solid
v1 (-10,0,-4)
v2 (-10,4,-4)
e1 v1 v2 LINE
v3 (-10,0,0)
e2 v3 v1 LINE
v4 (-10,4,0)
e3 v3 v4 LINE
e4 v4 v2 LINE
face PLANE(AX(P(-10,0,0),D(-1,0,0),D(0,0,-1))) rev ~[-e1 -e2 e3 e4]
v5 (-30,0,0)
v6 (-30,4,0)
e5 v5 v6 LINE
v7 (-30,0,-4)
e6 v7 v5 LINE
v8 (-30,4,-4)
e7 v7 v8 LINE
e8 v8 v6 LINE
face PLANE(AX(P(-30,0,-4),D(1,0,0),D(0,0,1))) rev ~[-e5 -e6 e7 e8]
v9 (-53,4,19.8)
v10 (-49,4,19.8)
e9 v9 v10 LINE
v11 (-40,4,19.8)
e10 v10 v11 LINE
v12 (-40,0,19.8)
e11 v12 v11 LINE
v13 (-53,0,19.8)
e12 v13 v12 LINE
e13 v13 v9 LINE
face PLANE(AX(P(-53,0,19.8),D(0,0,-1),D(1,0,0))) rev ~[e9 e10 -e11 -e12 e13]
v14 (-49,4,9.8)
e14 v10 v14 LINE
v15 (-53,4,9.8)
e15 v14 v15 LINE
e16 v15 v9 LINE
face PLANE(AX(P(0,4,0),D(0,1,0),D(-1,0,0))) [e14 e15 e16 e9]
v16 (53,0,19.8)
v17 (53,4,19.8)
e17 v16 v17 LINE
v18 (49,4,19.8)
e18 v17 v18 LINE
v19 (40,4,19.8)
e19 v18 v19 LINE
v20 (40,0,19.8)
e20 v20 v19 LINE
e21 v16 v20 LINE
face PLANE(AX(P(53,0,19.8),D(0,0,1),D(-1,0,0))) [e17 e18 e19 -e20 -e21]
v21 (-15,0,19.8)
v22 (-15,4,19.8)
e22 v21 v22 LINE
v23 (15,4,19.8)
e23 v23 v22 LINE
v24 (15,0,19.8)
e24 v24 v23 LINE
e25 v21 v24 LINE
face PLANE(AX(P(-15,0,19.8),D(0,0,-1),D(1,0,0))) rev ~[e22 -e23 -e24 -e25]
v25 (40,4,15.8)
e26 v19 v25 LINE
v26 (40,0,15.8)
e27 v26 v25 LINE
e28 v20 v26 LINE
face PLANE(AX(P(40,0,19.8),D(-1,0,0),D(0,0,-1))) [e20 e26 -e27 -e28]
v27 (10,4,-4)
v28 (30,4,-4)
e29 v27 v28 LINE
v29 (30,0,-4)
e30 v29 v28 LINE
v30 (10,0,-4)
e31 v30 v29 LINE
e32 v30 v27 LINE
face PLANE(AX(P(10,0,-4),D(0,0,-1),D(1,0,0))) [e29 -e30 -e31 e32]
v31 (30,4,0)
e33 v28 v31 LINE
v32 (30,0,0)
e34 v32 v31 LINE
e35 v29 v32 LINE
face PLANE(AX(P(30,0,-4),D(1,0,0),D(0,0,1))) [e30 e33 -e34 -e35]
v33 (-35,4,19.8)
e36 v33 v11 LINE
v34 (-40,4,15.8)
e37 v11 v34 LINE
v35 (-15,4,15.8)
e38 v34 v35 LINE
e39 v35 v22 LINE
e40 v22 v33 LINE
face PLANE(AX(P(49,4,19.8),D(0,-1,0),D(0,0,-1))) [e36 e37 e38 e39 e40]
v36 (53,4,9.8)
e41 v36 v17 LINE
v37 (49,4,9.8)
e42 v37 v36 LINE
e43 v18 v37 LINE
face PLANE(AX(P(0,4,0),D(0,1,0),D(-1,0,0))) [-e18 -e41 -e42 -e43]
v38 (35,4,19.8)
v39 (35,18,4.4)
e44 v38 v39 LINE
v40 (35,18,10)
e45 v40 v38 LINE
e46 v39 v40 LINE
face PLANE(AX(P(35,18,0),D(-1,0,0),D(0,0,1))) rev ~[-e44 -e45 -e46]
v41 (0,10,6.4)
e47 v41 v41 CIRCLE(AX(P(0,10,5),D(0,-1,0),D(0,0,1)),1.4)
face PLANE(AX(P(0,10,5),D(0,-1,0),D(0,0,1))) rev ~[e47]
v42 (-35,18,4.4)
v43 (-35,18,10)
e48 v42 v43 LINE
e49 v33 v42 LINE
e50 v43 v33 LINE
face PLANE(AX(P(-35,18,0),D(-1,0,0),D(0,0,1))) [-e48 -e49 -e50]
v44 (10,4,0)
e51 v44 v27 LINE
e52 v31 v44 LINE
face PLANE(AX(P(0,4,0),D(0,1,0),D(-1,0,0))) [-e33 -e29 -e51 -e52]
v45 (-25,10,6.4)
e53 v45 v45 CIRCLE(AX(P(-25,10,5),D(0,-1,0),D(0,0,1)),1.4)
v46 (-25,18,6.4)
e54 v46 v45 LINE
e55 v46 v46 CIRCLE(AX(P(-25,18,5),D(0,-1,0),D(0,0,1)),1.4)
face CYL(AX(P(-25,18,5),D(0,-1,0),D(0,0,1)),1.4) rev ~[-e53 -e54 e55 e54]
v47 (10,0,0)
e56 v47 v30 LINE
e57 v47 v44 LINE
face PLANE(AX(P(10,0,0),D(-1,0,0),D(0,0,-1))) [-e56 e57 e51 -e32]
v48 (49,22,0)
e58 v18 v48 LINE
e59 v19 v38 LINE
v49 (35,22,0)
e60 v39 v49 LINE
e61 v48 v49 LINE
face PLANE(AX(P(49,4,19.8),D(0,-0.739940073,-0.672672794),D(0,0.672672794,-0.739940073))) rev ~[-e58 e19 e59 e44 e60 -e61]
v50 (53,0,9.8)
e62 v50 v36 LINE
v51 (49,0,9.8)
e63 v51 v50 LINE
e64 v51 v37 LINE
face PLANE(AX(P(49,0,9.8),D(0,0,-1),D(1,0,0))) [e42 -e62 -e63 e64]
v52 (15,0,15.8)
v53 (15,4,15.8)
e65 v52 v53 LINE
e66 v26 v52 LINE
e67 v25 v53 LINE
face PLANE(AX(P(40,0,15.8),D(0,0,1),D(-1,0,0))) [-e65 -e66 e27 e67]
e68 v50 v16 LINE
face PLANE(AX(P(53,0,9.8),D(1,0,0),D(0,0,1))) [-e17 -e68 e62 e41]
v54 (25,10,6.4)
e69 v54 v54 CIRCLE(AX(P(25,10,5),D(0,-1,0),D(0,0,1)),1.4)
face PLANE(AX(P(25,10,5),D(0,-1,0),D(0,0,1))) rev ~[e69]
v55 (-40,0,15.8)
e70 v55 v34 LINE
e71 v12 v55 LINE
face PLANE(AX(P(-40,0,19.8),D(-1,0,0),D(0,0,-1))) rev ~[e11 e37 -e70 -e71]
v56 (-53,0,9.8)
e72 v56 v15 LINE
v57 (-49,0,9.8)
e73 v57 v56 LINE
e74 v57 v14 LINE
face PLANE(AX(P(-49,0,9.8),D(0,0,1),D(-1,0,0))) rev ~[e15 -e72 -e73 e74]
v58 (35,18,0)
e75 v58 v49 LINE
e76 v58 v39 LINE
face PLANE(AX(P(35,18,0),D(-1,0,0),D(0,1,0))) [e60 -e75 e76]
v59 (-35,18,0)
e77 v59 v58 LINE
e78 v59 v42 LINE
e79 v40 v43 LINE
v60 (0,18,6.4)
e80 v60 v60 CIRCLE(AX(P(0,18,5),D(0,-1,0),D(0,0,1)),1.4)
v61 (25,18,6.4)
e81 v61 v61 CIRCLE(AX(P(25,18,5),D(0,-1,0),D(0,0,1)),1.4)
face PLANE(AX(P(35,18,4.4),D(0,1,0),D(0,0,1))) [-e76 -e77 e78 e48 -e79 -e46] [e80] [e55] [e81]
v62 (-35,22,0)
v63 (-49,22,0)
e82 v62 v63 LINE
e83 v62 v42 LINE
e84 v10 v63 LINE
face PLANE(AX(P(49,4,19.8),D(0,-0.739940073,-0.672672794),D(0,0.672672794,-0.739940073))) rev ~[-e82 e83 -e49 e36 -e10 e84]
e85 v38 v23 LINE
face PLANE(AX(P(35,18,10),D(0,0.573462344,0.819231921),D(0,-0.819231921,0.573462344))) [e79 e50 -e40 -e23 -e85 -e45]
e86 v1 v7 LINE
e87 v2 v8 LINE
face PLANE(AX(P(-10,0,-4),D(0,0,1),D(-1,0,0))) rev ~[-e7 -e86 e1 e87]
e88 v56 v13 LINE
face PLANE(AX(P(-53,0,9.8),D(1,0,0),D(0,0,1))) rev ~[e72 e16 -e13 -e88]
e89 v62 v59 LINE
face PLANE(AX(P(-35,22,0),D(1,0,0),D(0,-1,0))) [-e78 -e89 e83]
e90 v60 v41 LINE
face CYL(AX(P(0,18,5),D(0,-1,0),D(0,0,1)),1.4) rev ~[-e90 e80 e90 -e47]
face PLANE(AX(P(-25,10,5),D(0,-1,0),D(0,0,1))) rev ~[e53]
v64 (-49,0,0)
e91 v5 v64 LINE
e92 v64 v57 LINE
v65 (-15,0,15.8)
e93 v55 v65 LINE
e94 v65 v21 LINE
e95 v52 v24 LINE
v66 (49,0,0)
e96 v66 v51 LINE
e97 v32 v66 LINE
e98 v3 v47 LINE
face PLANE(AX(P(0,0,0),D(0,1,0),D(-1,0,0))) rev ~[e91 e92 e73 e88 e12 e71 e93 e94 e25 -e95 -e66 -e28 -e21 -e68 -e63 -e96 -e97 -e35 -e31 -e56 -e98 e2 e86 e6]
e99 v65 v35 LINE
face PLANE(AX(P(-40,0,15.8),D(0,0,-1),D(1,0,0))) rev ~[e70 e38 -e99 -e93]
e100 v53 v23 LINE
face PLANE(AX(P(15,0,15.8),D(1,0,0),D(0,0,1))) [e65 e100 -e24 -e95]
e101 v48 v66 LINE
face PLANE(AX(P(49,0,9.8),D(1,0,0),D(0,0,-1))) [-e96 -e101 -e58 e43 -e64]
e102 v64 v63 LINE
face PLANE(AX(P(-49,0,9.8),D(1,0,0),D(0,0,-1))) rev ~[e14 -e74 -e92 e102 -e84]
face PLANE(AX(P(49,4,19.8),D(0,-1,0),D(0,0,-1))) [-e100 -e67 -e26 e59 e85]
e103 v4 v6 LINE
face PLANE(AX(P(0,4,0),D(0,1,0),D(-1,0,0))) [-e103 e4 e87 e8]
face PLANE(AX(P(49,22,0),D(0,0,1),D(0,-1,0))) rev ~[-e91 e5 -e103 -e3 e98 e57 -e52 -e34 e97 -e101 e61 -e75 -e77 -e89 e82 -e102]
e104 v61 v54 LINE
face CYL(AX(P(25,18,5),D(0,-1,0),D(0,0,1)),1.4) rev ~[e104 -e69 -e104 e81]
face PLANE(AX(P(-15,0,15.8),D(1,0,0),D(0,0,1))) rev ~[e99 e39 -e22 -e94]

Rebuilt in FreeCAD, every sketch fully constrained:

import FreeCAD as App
import Part
import Sketcher

V = App.Vector

doc = App.newDocument("Part")
body = doc.addObject("PartDesign::Body", "Body")

# Sketch on XZ plane
sketch1 = doc.addObject("Sketcher::SketchObject", "Sketch")
body.addObject(sketch1)
sketch1.AttachmentSupport = (doc.XZ_Plane, [""])
sketch1.MapMode = "FlatFace"
sketch1.addGeometry(Part.LineSegment(V(-15, 19.8, 0), V(15, 19.8, 0)), False)
sketch1.addGeometry(Part.LineSegment(V(15, 19.8, 0), V(15, 15.8, 0)), False)
sketch1.addGeometry(Part.LineSegment(V(15, 15.8, 0), V(40, 15.8, 0)), False)
sketch1.addGeometry(Part.LineSegment(V(40, 15.8, 0), V(40, 19.8, 0)), False)
sketch1.addGeometry(Part.LineSegment(V(40, 19.8, 0), V(53, 19.8, 0)), False)
sketch1.addGeometry(Part.LineSegment(V(53, 19.8, 0), V(53, 9.8, 0)), False)
sketch1.addGeometry(Part.LineSegment(V(53, 9.8, 0), V(49, 9.8, 0)), False)
sketch1.addGeometry(Part.LineSegment(V(49, 9.8, 0), V(49, 0, 0)), False)
sketch1.addGeometry(Part.LineSegment(V(49, 0, 0), V(30, 0, 0)), False)
sketch1.addGeometry(Part.LineSegment(V(30, 0, 0), V(30, -4, 0)), False)
sketch1.addGeometry(Part.LineSegment(V(30, -4, 0), V(10, -4, 0)), False)
sketch1.addGeometry(Part.LineSegment(V(10, -4, 0), V(10, 0, 0)), False)
sketch1.addGeometry(Part.LineSegment(V(10, 0, 0), V(-10, 0, 0)), False)
sketch1.addGeometry(Part.LineSegment(V(-10, 0, 0), V(-10, -4, 0)), False)
sketch1.addGeometry(Part.LineSegment(V(-10, -4, 0), V(-30, -4, 0)), False)
sketch1.addGeometry(Part.LineSegment(V(-30, -4, 0), V(-30, 0, 0)), False)
sketch1.addGeometry(Part.LineSegment(V(-30, 0, 0), V(-49, 0, 0)), False)
sketch1.addGeometry(Part.LineSegment(V(-49, 0, 0), V(-49, 9.8, 0)), False)
sketch1.addGeometry(Part.LineSegment(V(-49, 9.8, 0), V(-53, 9.8, 0)), False)
sketch1.addGeometry(Part.LineSegment(V(-53, 9.8, 0), V(-53, 19.8, 0)), False)
sketch1.addGeometry(Part.LineSegment(V(-53, 19.8, 0), V(-40, 19.8, 0)), False)
sketch1.addGeometry(Part.LineSegment(V(-40, 19.8, 0), V(-40, 15.8, 0)), False)
sketch1.addGeometry(Part.LineSegment(V(-40, 15.8, 0), V(-15, 15.8, 0)), False)
sketch1.addGeometry(Part.LineSegment(V(-15, 15.8, 0), V(-15, 19.8, 0)), False)
sketch1.addConstraint(Sketcher.Constraint("Coincident", 0, 2, 1, 1))
sketch1.addConstraint(Sketcher.Constraint("Coincident", 1, 2, 2, 1))
sketch1.addConstraint(Sketcher.Constraint("Coincident", 2, 2, 3, 1))
sketch1.addConstraint(Sketcher.Constraint("Coincident", 3, 2, 4, 1))
sketch1.addConstraint(Sketcher.Constraint("Coincident", 4, 2, 5, 1))
sketch1.addConstraint(Sketcher.Constraint("Coincident", 5, 2, 6, 1))
sketch1.addConstraint(Sketcher.Constraint("Coincident", 6, 2, 7, 1))
sketch1.addConstraint(Sketcher.Constraint("Coincident", 7, 2, 8, 1))
sketch1.addConstraint(Sketcher.Constraint("Coincident", 8, 2, 9, 1))
sketch1.addConstraint(Sketcher.Constraint("Coincident", 9, 2, 10, 1))
sketch1.addConstraint(Sketcher.Constraint("Coincident", 10, 2, 11, 1))
sketch1.addConstraint(Sketcher.Constraint("Coincident", 11, 2, 12, 1))
sketch1.addConstraint(Sketcher.Constraint("Coincident", 12, 2, 13, 1))
sketch1.addConstraint(Sketcher.Constraint("Coincident", 13, 2, 14, 1))
sketch1.addConstraint(Sketcher.Constraint("Coincident", 14, 2, 15, 1))
sketch1.addConstraint(Sketcher.Constraint("Coincident", 15, 2, 16, 1))
sketch1.addConstraint(Sketcher.Constraint("Coincident", 16, 2, 17, 1))
sketch1.addConstraint(Sketcher.Constraint("Coincident", 17, 2, 18, 1))
sketch1.addConstraint(Sketcher.Constraint("Coincident", 18, 2, 19, 1))
sketch1.addConstraint(Sketcher.Constraint("Coincident", 19, 2, 20, 1))
sketch1.addConstraint(Sketcher.Constraint("Coincident", 20, 2, 21, 1))
sketch1.addConstraint(Sketcher.Constraint("Coincident", 21, 2, 22, 1))
sketch1.addConstraint(Sketcher.Constraint("Coincident", 22, 2, 23, 1))
sketch1.addConstraint(Sketcher.Constraint("Coincident", 23, 2, 0, 1))
sketch1.addConstraint(Sketcher.Constraint("Horizontal", 0))
sketch1.addConstraint(Sketcher.Constraint("Vertical", 1))
sketch1.addConstraint(Sketcher.Constraint("Horizontal", 2))
sketch1.addConstraint(Sketcher.Constraint("Vertical", 3))
sketch1.addConstraint(Sketcher.Constraint("Horizontal", 4))
sketch1.addConstraint(Sketcher.Constraint("Vertical", 5))
sketch1.addConstraint(Sketcher.Constraint("Horizontal", 6))
sketch1.addConstraint(Sketcher.Constraint("Vertical", 7))
sketch1.addConstraint(Sketcher.Constraint("Horizontal", 8))
sketch1.addConstraint(Sketcher.Constraint("Vertical", 9))
sketch1.addConstraint(Sketcher.Constraint("Horizontal", 10))
sketch1.addConstraint(Sketcher.Constraint("Vertical", 11))
sketch1.addConstraint(Sketcher.Constraint("Horizontal", 12))
sketch1.addConstraint(Sketcher.Constraint("Vertical", 13))
sketch1.addConstraint(Sketcher.Constraint("Horizontal", 14))
sketch1.addConstraint(Sketcher.Constraint("Vertical", 15))
sketch1.addConstraint(Sketcher.Constraint("Horizontal", 16))
sketch1.addConstraint(Sketcher.Constraint("Vertical", 17))
sketch1.addConstraint(Sketcher.Constraint("Horizontal", 18))
sketch1.addConstraint(Sketcher.Constraint("Vertical", 19))
sketch1.addConstraint(Sketcher.Constraint("Horizontal", 20))
sketch1.addConstraint(Sketcher.Constraint("Vertical", 21))
sketch1.addConstraint(Sketcher.Constraint("Horizontal", 22))
sketch1.addConstraint(Sketcher.Constraint("Vertical", 23))
sketch1.addConstraint(Sketcher.Constraint("Symmetric", 11, 2, 12, 2, -1, 1))
sketch1.addConstraint(Sketcher.Constraint("Symmetric", 8, 2, 15, 2, -1, 1))
sketch1.addConstraint(Sketcher.Constraint("Symmetric", 7, 2, 16, 2, -2))
sketch1.addConstraint(Sketcher.Constraint("Symmetric", 5, 2, 18, 2, -2))
sketch1.addConstraint(Sketcher.Constraint("Symmetric", 3, 2, 20, 2, -2))
sketch1.addConstraint(Sketcher.Constraint("Symmetric", 1, 2, 22, 2, -2))
sketch1.addConstraint(Sketcher.Constraint("Horizontal", 0, 2, 3, 2))
sketch1.addConstraint(Sketcher.Constraint("Horizontal", 10, 2, 13, 2))
sketch1.addConstraint(Sketcher.Constraint("Equal", 10, 12))
sketch1.addConstraint(Sketcher.Constraint("Equal", 18, 1))
sketch1.addConstraint(Sketcher.Constraint("Equal", 3, 9))
sketch1.addConstraint(Sketcher.Constraint("DistanceX", 0, 1, 0, 2, 30.0))
sketch1.addConstraint(Sketcher.Constraint("DistanceX", 2, 1, 2, 2, 25.0))
sketch1.addConstraint(Sketcher.Constraint("DistanceX", 6, 2, 6, 1, 4.0))
sketch1.addConstraint(Sketcher.Constraint("DistanceX", 8, 2, 8, 1, 19.0))
sketch1.addConstraint(Sketcher.Constraint("DistanceX", 10, 2, 10, 1, 20.0))
sketch1.addConstraint(Sketcher.Constraint("DistanceY", 5, 2, 5, 1, 10.0))
sketch1.addConstraint(Sketcher.Constraint("DistanceY", -1, 1, 0, 2, 19.8))
pad1 = doc.addObject("PartDesign::Pad", "Pad")
body.addObject(pad1)
pad1.Profile = sketch1
pad1.Length = 4
pad1.Reversed = True

# Sketch on YZ plane
sketch2 = doc.addObject("Sketcher::SketchObject", "Sketch001")
body.addObject(sketch2)
sketch2.AttachmentSupport = (doc.YZ_Plane, [""])
sketch2.MapMode = "FlatFace"
sketch2.AttachmentOffset = App.Placement(V(0, 0, 49), App.Rotation())
sketch2.addGeometry(Part.LineSegment(V(22, 0, 0), V(4, 20, 0)), False)
sketch2.addGeometry(Part.LineSegment(V(4, 20, 0), V(4, 0, 0)), False)
sketch2.addGeometry(Part.LineSegment(V(4, 0, 0), V(22, 0, 0)), False)
sketch2.addConstraint(Sketcher.Constraint("Coincident", 0, 2, 1, 1))
sketch2.addConstraint(Sketcher.Constraint("Coincident", 1, 2, 2, 1))
sketch2.addConstraint(Sketcher.Constraint("Coincident", 2, 2, 0, 1))
sketch2.addConstraint(Sketcher.Constraint("Vertical", 1))
sketch2.addConstraint(Sketcher.Constraint("Horizontal", 2))
sketch2.addConstraint(Sketcher.Constraint("PointOnObject", 1, 2, -1))
sketch2.addConstraint(Sketcher.Constraint("DistanceX", -1, 1, 2, 2, 22.0))
sketch2.addConstraint(Sketcher.Constraint("DistanceX", 2, 1, 2, 2, 18.0))
sketch2.addConstraint(Sketcher.Constraint("DistanceY", 1, 2, 1, 1, 19.8))
pad2 = doc.addObject("PartDesign::Pad", "Pad001")
body.addObject(pad2)
pad2.Profile = sketch2
pad2.Length = 98
pad2.Reversed = True

# Sketch on XY plane
sketch3 = doc.addObject("Sketcher::SketchObject", "Sketch002")
body.addObject(sketch3)
sketch3.AttachmentSupport = (doc.XY_Plane, [""])
sketch3.MapMode = "FlatFace"
sketch3.addGeometry(Part.LineSegment(V(-35, 22, 0), V(35, 22, 0)), False)
sketch3.addGeometry(Part.LineSegment(V(35, 22, 0), V(35, 18, 0)), False)
sketch3.addGeometry(Part.LineSegment(V(35, 18, 0), V(-35, 18, 0)), False)
sketch3.addGeometry(Part.LineSegment(V(-35, 18, 0), V(-35, 22, 0)), False)
sketch3.addConstraint(Sketcher.Constraint("Coincident", 0, 2, 1, 1))
sketch3.addConstraint(Sketcher.Constraint("Coincident", 1, 2, 2, 1))
sketch3.addConstraint(Sketcher.Constraint("Coincident", 2, 2, 3, 1))
sketch3.addConstraint(Sketcher.Constraint("Coincident", 3, 2, 0, 1))
sketch3.addConstraint(Sketcher.Constraint("Horizontal", 0))
sketch3.addConstraint(Sketcher.Constraint("Vertical", 1))
sketch3.addConstraint(Sketcher.Constraint("Horizontal", 2))
sketch3.addConstraint(Sketcher.Constraint("Vertical", 3))
sketch3.addConstraint(Sketcher.Constraint("DistanceX", 0, 1, 0, 2, 70.0))
sketch3.addConstraint(Sketcher.Constraint("DistanceY", 1, 2, 1, 1, 4.0))
sketch3.addConstraint(Sketcher.Constraint("DistanceX", -1, 1, 0, 2, 35.0))
sketch3.addConstraint(Sketcher.Constraint("DistanceY", -1, 1, 0, 2, 22.0))
pocket1 = doc.addObject("PartDesign::Pocket", "Pocket")
body.addObject(pocket1)
pocket1.Profile = sketch3
pocket1.Type = "ThroughAll"
pocket1.Reversed = True

# Sketch on YZ plane
sketch4 = doc.addObject("Sketcher::SketchObject", "Sketch003")
body.addObject(sketch4)
sketch4.AttachmentSupport = (doc.YZ_Plane, [""])
sketch4.MapMode = "FlatFace"
sketch4.AttachmentOffset = App.Placement(V(0, 0, 35), App.Rotation())
sketch4.addGeometry(Part.LineSegment(V(18, 10, 0), V(18, 4, 0)), False)
sketch4.addGeometry(Part.LineSegment(V(18, 4, 0), V(4, 20, 0)), False)
sketch4.addGeometry(Part.LineSegment(V(4, 20, 0), V(18, 10, 0)), False)
sketch4.addConstraint(Sketcher.Constraint("Coincident", 0, 2, 1, 1))
sketch4.addConstraint(Sketcher.Constraint("Coincident", 1, 2, 2, 1))
sketch4.addConstraint(Sketcher.Constraint("Coincident", 2, 2, 0, 1))
sketch4.addConstraint(Sketcher.Constraint("Vertical", 0))
sketch4.addConstraint(Sketcher.Constraint("DistanceY", -1, 1, 2, 2, 10.0))
sketch4.addConstraint(Sketcher.Constraint("DistanceY", 0, 2, 0, 1, 5.6))
sketch4.addConstraint(Sketcher.Constraint("DistanceX", -1, 1, 0, 2, 18.0))
sketch4.addConstraint(Sketcher.Constraint("DistanceX", -1, 1, 1, 2, 4.0))
sketch4.addConstraint(Sketcher.Constraint("DistanceY", -1, 1, 1, 2, 19.8))
pad3 = doc.addObject("PartDesign::Pad", "Pad002")
body.addObject(pad3)
pad3.Profile = sketch4
pad3.Length = 70
pad3.Reversed = True

# Sketch on XZ plane
sketch5 = doc.addObject("Sketcher::SketchObject", "Sketch004")
body.addObject(sketch5)
sketch5.AttachmentSupport = (doc.XZ_Plane, [""])
sketch5.MapMode = "FlatFace"
sketch5.AttachmentOffset = App.Placement(V(0, 0, -18), App.Rotation())
sketch5.addGeometry(Part.Circle(V(25, 5, 0), V(0, 0, 1), 1.4), False)
sketch5.addGeometry(Part.Circle(V(0, 5, 0), V(0, 0, 1), 1.4), False)
sketch5.addGeometry(Part.Circle(V(-25, 5, 0), V(0, 0, 1), 1.4), False)
sketch5.addConstraint(Sketcher.Constraint("Equal", 0, 1))
sketch5.addConstraint(Sketcher.Constraint("Equal", 1, 2))
sketch5.addConstraint(Sketcher.Constraint("Symmetric", 0, 3, 2, 3, -2))
sketch5.addConstraint(Sketcher.Constraint("PointOnObject", 1, 3, -2))
sketch5.addConstraint(Sketcher.Constraint("Horizontal", 0, 3, 1, 3))
sketch5.addConstraint(Sketcher.Constraint("Diameter", 0, 2.8))
sketch5.addConstraint(Sketcher.Constraint("DistanceX", -1, 1, 0, 3, 25.0))
sketch5.addConstraint(Sketcher.Constraint("DistanceY", -1, 1, 0, 3, 5.0))
doc.recompute()
hole = doc.addObject("PartDesign::Hole", "Hole")
body.addObject(hole)
hole.Profile = sketch5
hole.ThreadType = "None"
hole.Diameter = 2.8
hole.DepthType = "Dimension"
hole.Depth = 8
hole.DrillPoint = "Flat"
hole.Reversed = True

doc.recompute()
